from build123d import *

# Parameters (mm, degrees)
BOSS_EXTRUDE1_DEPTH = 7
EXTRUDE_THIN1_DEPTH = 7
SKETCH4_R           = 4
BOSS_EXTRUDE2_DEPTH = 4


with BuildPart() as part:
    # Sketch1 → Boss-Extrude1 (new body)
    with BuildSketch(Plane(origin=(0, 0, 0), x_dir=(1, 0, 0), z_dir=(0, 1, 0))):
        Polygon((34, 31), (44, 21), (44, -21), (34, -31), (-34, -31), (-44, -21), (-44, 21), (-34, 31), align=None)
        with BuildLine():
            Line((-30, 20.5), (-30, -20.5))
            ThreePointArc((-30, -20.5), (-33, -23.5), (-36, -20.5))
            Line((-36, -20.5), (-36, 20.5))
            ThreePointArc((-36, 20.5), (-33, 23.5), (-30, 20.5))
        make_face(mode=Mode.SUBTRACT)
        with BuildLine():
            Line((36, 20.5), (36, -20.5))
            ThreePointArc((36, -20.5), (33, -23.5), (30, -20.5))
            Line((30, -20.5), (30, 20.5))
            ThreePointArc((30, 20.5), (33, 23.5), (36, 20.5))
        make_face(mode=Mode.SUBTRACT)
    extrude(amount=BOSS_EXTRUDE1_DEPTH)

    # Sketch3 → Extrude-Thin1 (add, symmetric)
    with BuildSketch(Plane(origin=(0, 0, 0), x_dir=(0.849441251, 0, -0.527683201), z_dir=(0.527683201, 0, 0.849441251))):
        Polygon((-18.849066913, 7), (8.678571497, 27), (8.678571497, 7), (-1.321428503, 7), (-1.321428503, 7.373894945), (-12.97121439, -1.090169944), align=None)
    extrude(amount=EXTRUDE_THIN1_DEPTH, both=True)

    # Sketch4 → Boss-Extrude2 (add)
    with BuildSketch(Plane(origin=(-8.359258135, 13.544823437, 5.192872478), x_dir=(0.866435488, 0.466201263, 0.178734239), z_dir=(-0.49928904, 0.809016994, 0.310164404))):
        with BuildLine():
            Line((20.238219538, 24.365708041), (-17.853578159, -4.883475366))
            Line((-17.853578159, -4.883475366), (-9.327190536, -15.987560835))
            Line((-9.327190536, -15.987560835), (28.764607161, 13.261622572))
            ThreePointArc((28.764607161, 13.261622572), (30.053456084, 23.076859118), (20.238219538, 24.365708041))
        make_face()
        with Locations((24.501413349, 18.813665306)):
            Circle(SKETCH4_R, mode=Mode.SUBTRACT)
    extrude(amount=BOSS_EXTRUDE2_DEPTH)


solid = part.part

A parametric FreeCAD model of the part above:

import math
import FreeCAD as App
import Part
import Sketcher
from FreeCAD import Vector
Q = App.Units.Quantity


def add_polygon(sketch, points):
    """Adds a closed chain of lines whose ends are joined by coincident constraints."""
    first, n = sketch.GeometryCount, len(points)
    for a, b in zip(points, points[1:] + points[:1]):
        sketch.addGeometry(Part.LineSegment(App.Vector(*a, 0), App.Vector(*b, 0)), False)
    for i in range(n):
        sketch.addConstraint(Sketcher.Constraint("Coincident", first + i, 2, first + (i + 1) % n, 1))

doc = App.newDocument("Part")
body = doc.addObject("PartDesign::Body", "Body")

# Sketch on XZ plane
sketch1 = body.newObject("Sketcher::SketchObject", "Sketch")
sketch1.AttachmentSupport = (doc.getObject("XZ_Plane"), [""])
sketch1.MapMode = "FlatFace"
add_polygon(sketch1, [(44, -21), (34, -31), (-34, -31), (-44, -21), (-44, 21), (-34, 31), (34, 31), (44, 21)])  # lines 0-7
sketch1.addGeometry(Part.LineSegment(Vector(36, -20.5, 0), Vector(36, 20.5, 0)), False)  # 8
sketch1.addGeometry(Part.ArcOfCircle(Part.Circle(Vector(33, 20.5, 0), Vector(0, 0, 1), 3), math.radians(0), math.radians(180)), False)  # 9
sketch1.addGeometry(Part.LineSegment(Vector(30, 20.5, 0), Vector(30, -20.5, 0)), False)  # 10
sketch1.addGeometry(Part.ArcOfCircle(Part.Circle(Vector(33, -20.5, 0), Vector(0, 0, 1), 3), math.radians(180), math.radians(360)), False)  # 11
sketch1.addGeometry(Part.LineSegment(Vector(-30, -20.5, 0), Vector(-30, 20.5, 0)), False)  # 12
sketch1.addGeometry(Part.ArcOfCircle(Part.Circle(Vector(-33, 20.5, 0), Vector(0, 0, 1), 3), math.radians(0), math.radians(180)), False)  # 13
sketch1.addGeometry(Part.LineSegment(Vector(-36, 20.5, 0), Vector(-36, -20.5, 0)), False)  # 14
sketch1.addGeometry(Part.ArcOfCircle(Part.Circle(Vector(-33, -20.5, 0), Vector(0, 0, 1), 3), math.radians(180), math.radians(360)), False)  # 15
sketch1.addConstraint([
    Sketcher.Constraint("Tangent", 8, 2, 9, 1),
    Sketcher.Constraint("Tangent", 9, 2, 10, 1),
    Sketcher.Constraint("Tangent", 10, 2, 11, 1),
    Sketcher.Constraint("Tangent", 11, 2, 8, 1),
    Sketcher.Constraint("Tangent", 12, 2, 13, 1),
    Sketcher.Constraint("Tangent", 13, 2, 14, 1),
    Sketcher.Constraint("Tangent", 14, 2, 15, 1),
    Sketcher.Constraint("Tangent", 15, 2, 12, 1),
    Sketcher.Constraint("Horizontal", 1),
    Sketcher.Constraint("Vertical", 3),
    Sketcher.Constraint("Horizontal", 5),
    Sketcher.Constraint("Vertical", 7),
    Sketcher.Constraint("Vertical", 8),
    Sketcher.Constraint("Vertical", 10),
    Sketcher.Constraint("Vertical", 12),
    Sketcher.Constraint("Vertical", 14),
    Sketcher.Constraint("Equal", 11, 13),
    Sketcher.Constraint("Symmetric", 11, 3, 13, 3, -1, 1),
    Sketcher.Constraint("Symmetric", 0, 2, 4, 2, -1, 1),
    Sketcher.Constraint("Symmetric", 2, 2, 6, 2, -1, 1),
    Sketcher.Constraint("Perpendicular", 0, 2),
    Sketcher.Constraint("Perpendicular", 2, 4),
    Sketcher.Constraint("Perpendicular", 4, 6),
    Sketcher.Constraint("Horizontal", 9, 3, 13, 3),
    Sketcher.Constraint("Horizontal", 11, 3, 15, 3),
    Sketcher.Constraint("Horizontal", 3, 2, 6, 2),
    Sketcher.Constraint("Vertical", 1, 2, 4, 2),
    Sketcher.Constraint("Radius", 9, Q("3 mm")),
    Sketcher.Constraint("DistanceX", 1, 2, 1, 1, Q("68 mm")),
    Sketcher.Constraint("DistanceY", 3, 1, 3, 2, Q("42 mm")),
    Sketcher.Constraint("DistanceY", 8, 1, 8, 2, Q("41 mm")),
    Sketcher.Constraint("DistanceX", -1, 1, 9, 3, Q("33 mm")),
    Sketcher.Constraint("DistanceY", 0, 2, -1, 1, Q("31 mm")),
])
pad1 = body.newObject("PartDesign::Pad", "Pad")
pad1.Profile = sketch1
pad1.Length = 7
pad1.Reversed = True

# Sketch on an angled plane
sketch2 = body.newObject("Sketcher::SketchObject", "Sketch001")
sketch2.Placement = App.Placement(Vector(0, 0, 0), App.Rotation(Vector(0.849441251, 0, -0.527683201), Vector(0, 1, 0), Vector(0.527683201, 0, 0.849441251), "ZXY"))
add_polygon(sketch2, [(8.68, 27), (-18.85, 7), (-12.97, -1.09), (-1.32, 7.37), (-1.32, 7), (8.68, 7)])  # lines 0-5
sketch2.addConstraint([
    Sketcher.Constraint("Vertical", 3),
    Sketcher.Constraint("Horizontal", 4),
    Sketcher.Constraint("Vertical", 5),
    Sketcher.Constraint("Perpendicular", 0, 1),
    Sketcher.Constraint("Perpendicular", 1, 2),
    Sketcher.Constraint("Horizontal", 0, 2, 3, 2),
    Sketcher.Constraint("DistanceX", 4, 1, 4, 2, Q("10 mm")),
    Sketcher.Constraint("DistanceY", 5, 1, 5, 2, Q("20 mm")),
    Sketcher.Constraint("Angle", 0, Q("-144 deg")),
    Sketcher.Constraint("Distance", 1, Q("10 mm")),
    Sketcher.Constraint("DistanceY", -1, 1, 0, 2, Q("7 mm")),
    Sketcher.Constraint("DistanceX", 2, 2, -1, 1, Q("1.321429 mm")),
])
pad2 = body.newObject("PartDesign::Pad", "Pad001")
pad2.Profile = sketch2
pad2.Length = 14
pad2.Midplane = True

# Sketch on an angled plane
sketch3 = body.newObject("Sketcher::SketchObject", "Sketch002")
sketch3.Placement = App.Placement(Vector(-8.359258, 13.544823, 5.192872), App.Rotation(Vector(0.866435488, 0.466201263, 0.178734239), Vector(0, 0.357977493, -0.933730215), Vector(-0.49928904, 0.809016994, 0.310164404), "ZXY"))
sketch3.addGeometry([
    Part.LineSegment(Vector(20.2, 24.4, 0), Vector(-17.9, -4.9, 0)),  # 0
    Part.LineSegment(Vector(-17.9, -4.9, 0), Vector(-9.3, -16, 0)),  # 1
    Part.LineSegment(Vector(-9.3, -16, 0), Vector(28.8, 13.3, 0)),  # 2
    Part.ArcOfCircle(Part.Circle(Vector(24.5, 18.8, 0), Vector(0, 0, 1), 7), math.radians(-52), math.radians(128)),  # 3
    Part.Circle(Vector(24.5, 18.8, 0), Vector(0, 0, 1), 4),  # 4
], False)
sketch3.addConstraint([
    Sketcher.Constraint("Coincident", 0, 2, 1, 1),
    Sketcher.Constraint("Coincident", 1, 2, 2, 1),
    Sketcher.Constraint("Tangent", 2, 2, 3, 1),
    Sketcher.Constraint("Tangent", 3, 2, 0, 1),
    Sketcher.Constraint("Coincident", 4, 3, 3, 3),
    Sketcher.Constraint("Perpendicular", 0, 1),
    Sketcher.Constraint("Perpendicular", 1, 2),
    Sketcher.Constraint("Diameter", 4, Q("8 mm")),
    Sketcher.Constraint("Radius", 3, Q("7 mm")),
    Sketcher.Constraint("DistanceX", 0, 2, -1, 1, Q("17.853578 mm")),
    Sketcher.Constraint("DistanceX", 1, 2, -1, 1, Q("9.327191 mm")),
    Sketcher.Constraint("DistanceY", 1, 2, -1, 1, Q("15.987561 mm")),
    Sketcher.Constraint("DistanceX", -1, 1, 3, 2, Q("20.23822 mm")),
])
pad3 = body.newObject("PartDesign::Pad", "Pad002")
pad3.Profile = sketch3
pad3.Length = 4

doc.recompute()
